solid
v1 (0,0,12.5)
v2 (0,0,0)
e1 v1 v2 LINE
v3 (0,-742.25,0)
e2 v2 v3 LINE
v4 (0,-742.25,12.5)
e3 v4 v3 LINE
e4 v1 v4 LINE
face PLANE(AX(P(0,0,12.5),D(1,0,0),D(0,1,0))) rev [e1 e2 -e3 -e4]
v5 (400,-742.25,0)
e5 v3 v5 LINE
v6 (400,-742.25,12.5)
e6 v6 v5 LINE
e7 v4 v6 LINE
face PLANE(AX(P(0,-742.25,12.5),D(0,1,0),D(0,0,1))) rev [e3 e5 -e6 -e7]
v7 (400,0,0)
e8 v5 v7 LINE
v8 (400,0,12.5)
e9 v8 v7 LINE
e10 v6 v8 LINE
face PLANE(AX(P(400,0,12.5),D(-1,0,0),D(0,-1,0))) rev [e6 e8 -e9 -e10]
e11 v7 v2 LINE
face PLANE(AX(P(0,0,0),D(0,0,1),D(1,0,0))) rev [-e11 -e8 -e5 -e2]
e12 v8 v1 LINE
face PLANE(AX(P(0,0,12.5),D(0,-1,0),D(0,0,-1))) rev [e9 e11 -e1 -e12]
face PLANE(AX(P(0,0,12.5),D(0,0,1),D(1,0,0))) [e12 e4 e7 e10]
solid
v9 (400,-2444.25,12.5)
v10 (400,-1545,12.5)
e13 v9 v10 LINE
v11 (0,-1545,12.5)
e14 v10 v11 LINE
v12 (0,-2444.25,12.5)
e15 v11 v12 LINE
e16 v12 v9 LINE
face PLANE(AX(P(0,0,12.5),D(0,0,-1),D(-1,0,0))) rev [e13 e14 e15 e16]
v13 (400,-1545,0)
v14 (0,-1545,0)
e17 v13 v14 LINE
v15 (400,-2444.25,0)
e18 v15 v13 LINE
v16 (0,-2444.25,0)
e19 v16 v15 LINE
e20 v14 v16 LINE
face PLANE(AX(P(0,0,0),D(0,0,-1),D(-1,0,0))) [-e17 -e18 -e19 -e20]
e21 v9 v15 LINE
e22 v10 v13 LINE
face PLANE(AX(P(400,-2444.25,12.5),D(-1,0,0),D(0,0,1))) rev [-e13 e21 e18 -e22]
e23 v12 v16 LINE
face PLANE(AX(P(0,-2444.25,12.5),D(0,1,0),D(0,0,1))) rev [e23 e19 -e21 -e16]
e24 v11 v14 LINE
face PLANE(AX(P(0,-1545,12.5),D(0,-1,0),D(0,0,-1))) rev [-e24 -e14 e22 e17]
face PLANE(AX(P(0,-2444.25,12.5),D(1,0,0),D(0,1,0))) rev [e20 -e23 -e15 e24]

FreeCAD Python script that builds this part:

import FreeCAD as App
import Part
import Sketcher
from FreeCAD import Vector
Q = App.Units.Quantity


def add_polygon(sketch, points):
    """Adds a closed chain of lines whose ends are joined by coincident constraints."""
    first, n = sketch.GeometryCount, len(points)
    for a, b in zip(points, points[1:] + points[:1]):
        sketch.addGeometry(Part.LineSegment(App.Vector(*a, 0), App.Vector(*b, 0)), False)
    for i in range(n):
        sketch.addConstraint(Sketcher.Constraint("Coincident", first + i, 2, first + (i + 1) % n, 1))

doc = App.newDocument("Part")
params = doc.addObject("Spreadsheet::Sheet", "Params")
for row, (alias, value) in enumerate([
    ("sketch1_width", "400 mm"),
    ("sketch1_height", "742.25 mm"),
    ("pad1_length", "12.5 mm"),
    ("sketch2_width", "400 mm"),
    ("sketch2_height", "899.25 mm"),
    ("pad2_length", "12.5 mm"),
], start=1):
    params.set(f"A{row}", alias)
    params.set(f"B{row}", "=" + value)
    params.setAlias(f"B{row}", alias)

body = doc.addObject("PartDesign::Body", "Body")

# Sketch on XY plane
sketch1 = body.newObject("Sketcher::SketchObject", "Sketch")
sketch1.AttachmentSupport = (doc.getObject("XY_Plane"), [""])
sketch1.MapMode = "FlatFace"
add_polygon(sketch1, [(0, 0), (0, -742), (400, -742), (400, 0)])  # lines 0-3
sketch1.addConstraint([
    Sketcher.Constraint("Vertical", 0),
    Sketcher.Constraint("Horizontal", 1),
    Sketcher.Constraint("Vertical", 2),
    Sketcher.Constraint("Horizontal", 3),
    Sketcher.Constraint("Coincident", 3, 2, -1, 1),
    Sketcher.Constraint("DistanceX", 1, 1, 1, 2, Q("400 mm")),
    Sketcher.Constraint("DistanceY", 0, 2, 0, 1, Q("742.25 mm")),
])
sketch1.setExpression("Constraints[9]", "Params.sketch1_width")
sketch1.setExpression("Constraints[10]", "Params.sketch1_height")
pad1 = body.newObject("PartDesign::Pad", "Pad")
pad1.Profile = sketch1
pad1.setExpression("Length", "Params.pad1_length")
body2 = doc.addObject("PartDesign::Body", "Body001")

# Sketch on XY plane
sketch2 = body2.newObject("Sketcher::SketchObject", "Sketch001")
sketch2.AttachmentSupport = (doc.getObject("XY_Plane001"), [""])
sketch2.MapMode = "FlatFace"
add_polygon(sketch2, [(0, -1545), (0, -2444), (400, -2444), (400, -1545)])  # lines 0-3
sketch2.addConstraint([
    Sketcher.Constraint("Vertical", 0),
    Sketcher.Constraint("Horizontal", 1),
    Sketcher.Constraint("Vertical", 2),
    Sketcher.Constraint("Horizontal", 3),
    Sketcher.Constraint("PointOnObject", 0, 2, -2),
    Sketcher.Constraint("DistanceX", 1, 1, 1, 2, Q("400 mm")),
    Sketcher.Constraint("DistanceY", 2, 2, -1, 1, Q("1545 mm")),
    Sketcher.Constraint("DistanceY", 0, 2, 0, 1, Q("899.25 mm")),
])
sketch2.setExpression("Constraints[9]", "Params.sketch2_width")
sketch2.setExpression("Constraints[11]", "Params.sketch2_height")
pad2 = body2.newObject("PartDesign::Pad", "Pad001")
pad2.Profile = sketch2
pad2.setExpression("Length", "Params.pad2_length")

doc.recompute()
